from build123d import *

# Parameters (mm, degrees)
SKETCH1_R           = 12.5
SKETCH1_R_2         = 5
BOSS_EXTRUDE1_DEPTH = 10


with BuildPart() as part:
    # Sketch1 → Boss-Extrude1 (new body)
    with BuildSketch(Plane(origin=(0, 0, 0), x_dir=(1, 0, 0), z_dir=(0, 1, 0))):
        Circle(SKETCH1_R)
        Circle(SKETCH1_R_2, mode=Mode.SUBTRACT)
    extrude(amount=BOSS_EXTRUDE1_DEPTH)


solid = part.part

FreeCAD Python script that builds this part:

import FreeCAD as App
import Part
import Sketcher

doc = App.newDocument("Part")
params = doc.addObject("Spreadsheet::Sheet", "Params")
for row, (alias, value) in enumerate([
    ("sketch1_diameter", "25 mm"),
    ("sketch1_diameter2", "10 mm"),
    ("pad1_length", "10 mm"),
], start=1):
    params.set(f"A{row}", alias)
    params.set(f"B{row}", "=" + value)
    params.setAlias(f"B{row}", alias)

body = doc.addObject("PartDesign::Body", "Body")

# Sketch on XZ plane
sketch1 = body.newObject("Sketcher::SketchObject", "Sketch")
sketch1.AttachmentSupport = (doc.getObject("XZ_Plane"), [""])
sketch1.MapMode = "FlatFace"
sketch1.addGeometry([
    Part.Circle(App.Vector(0, 0, 0), App.Vector(0, 0, 1), 12),
    Part.Circle(App.Vector(0, 0, 0), App.Vector(0, 0, 1), 5),
], False)
sketch1.addConstraint([
    Sketcher.Constraint("Coincident", 0, 3, -1, 1),
    Sketcher.Constraint("Coincident", 1, 3, -1, 1),
    Sketcher.Constraint("Diameter", 0, 25.0),
    Sketcher.Constraint("Diameter", 1, 10.0),
])
sketch1.setExpression("Constraints[2]", "Params.sketch1_diameter")
sketch1.setExpression("Constraints[3]", "Params.sketch1_diameter2")
pad1 = body.newObject("PartDesign::Pad", "Pad")
pad1.Profile = sketch1
pad1.setExpression("Length", "Params.pad1_length")
pad1.Reversed = True

doc.recompute()
